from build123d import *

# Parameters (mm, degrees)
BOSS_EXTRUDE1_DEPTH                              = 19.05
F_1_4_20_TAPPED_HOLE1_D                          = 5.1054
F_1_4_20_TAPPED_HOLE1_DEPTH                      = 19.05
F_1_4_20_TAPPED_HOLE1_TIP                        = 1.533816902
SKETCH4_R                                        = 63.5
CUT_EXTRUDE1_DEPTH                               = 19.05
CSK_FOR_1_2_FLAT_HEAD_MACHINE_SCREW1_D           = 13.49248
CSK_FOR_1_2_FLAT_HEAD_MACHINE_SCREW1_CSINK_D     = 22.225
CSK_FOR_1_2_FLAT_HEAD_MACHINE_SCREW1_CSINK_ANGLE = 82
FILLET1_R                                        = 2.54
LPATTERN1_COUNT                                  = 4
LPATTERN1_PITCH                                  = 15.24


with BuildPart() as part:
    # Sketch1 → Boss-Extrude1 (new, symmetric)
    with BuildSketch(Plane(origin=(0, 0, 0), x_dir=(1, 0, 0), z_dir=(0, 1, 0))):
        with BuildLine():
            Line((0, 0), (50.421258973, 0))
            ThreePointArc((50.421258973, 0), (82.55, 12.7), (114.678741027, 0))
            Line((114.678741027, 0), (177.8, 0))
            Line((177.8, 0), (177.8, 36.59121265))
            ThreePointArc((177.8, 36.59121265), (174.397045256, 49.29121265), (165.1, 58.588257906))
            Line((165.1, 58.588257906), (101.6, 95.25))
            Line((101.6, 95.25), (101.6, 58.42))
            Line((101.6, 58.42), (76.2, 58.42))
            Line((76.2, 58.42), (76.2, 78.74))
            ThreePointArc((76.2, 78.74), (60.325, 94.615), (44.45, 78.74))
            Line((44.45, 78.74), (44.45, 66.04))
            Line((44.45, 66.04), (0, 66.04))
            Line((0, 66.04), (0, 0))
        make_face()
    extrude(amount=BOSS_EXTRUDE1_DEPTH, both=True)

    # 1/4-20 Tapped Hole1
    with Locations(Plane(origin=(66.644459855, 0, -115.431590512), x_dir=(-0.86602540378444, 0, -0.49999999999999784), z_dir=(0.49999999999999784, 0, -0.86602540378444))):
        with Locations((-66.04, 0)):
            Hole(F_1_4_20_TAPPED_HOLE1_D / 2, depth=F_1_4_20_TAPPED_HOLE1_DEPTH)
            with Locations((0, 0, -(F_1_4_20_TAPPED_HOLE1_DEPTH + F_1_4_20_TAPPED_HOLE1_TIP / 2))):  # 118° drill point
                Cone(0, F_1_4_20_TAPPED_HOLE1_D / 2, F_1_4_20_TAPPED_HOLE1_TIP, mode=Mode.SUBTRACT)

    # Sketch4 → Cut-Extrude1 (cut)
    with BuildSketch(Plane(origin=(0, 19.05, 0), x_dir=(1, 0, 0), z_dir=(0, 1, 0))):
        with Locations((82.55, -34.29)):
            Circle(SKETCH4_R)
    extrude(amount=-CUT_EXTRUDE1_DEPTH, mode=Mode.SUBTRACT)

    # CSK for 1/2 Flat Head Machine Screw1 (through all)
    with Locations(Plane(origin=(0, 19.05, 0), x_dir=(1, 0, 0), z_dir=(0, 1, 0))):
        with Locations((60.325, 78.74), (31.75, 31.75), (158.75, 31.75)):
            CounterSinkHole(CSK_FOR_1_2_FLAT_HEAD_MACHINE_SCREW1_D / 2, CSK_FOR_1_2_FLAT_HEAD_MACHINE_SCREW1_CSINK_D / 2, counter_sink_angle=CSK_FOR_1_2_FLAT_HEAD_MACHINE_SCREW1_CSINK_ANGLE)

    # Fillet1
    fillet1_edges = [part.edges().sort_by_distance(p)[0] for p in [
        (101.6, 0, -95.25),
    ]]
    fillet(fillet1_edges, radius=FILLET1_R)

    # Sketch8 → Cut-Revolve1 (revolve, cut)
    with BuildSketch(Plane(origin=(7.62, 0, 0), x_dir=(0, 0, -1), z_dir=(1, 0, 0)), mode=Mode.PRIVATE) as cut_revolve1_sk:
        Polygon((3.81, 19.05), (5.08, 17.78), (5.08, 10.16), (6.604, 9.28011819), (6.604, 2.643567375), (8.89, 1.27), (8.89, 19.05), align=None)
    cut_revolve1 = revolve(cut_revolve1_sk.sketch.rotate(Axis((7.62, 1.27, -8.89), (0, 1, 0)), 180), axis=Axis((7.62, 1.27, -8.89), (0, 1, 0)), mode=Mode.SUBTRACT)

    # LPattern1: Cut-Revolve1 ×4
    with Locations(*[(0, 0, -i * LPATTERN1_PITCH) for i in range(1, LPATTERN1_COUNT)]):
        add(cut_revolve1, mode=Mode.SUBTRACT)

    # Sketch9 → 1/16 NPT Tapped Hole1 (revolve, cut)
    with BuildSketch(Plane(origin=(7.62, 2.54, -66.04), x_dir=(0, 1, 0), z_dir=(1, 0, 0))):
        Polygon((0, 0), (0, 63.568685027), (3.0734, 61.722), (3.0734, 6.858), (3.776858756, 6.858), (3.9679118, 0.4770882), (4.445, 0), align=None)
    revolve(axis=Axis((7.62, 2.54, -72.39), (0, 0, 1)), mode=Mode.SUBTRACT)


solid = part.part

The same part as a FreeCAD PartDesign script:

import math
import FreeCAD as App
import Part
import Sketcher

V = App.Vector
Q = App.Units.Quantity


def edges_at(feature, points):
    """Names of the edges that pass closest to the given points."""
    edges = feature.Shape.Edges
    near = lambda p: min(range(len(edges)), key=lambda i: edges[i].distToShape(Part.Vertex(*p))[0])
    return sorted({f"Edge{near(p) + 1}" for p in points})

doc = App.newDocument("Part")
body = doc.addObject("PartDesign::Body", "Body")

# Sketch on XZ plane
sketch1 = body.newObject("Sketcher::SketchObject", "Sketch")
sketch1.AttachmentSupport = (doc.getObject("XZ_Plane"), [""])
sketch1.MapMode = "FlatFace"
sketch1.addGeometry([
    Part.LineSegment(V(0, 0, 0), V(50, 0, 0)),  # 0
    Part.ArcOfCircle(Part.Circle(V(83, 34, 0), V(0, 0, 1), 47), math.radians(-133), math.radians(-47)),  # 1
    Part.LineSegment(V(115, 0, 0), V(178, 0, 0)),  # 2
    Part.LineSegment(V(178, 0, 0), V(178, -37, 0)),  # 3
    Part.ArcOfCircle(Part.Circle(V(152, -37, 0), V(0, 0, 1), 25), math.radians(-60), math.radians(0)),  # 4
    Part.LineSegment(V(165, -59, 0), V(102, -95, 0)),  # 5
    Part.LineSegment(V(102, -95, 0), V(102, -58, 0)),  # 6
    Part.LineSegment(V(102, -58, 0), V(76, -58, 0)),  # 7
    Part.LineSegment(V(76, -58, 0), V(76, -79, 0)),  # 8
    Part.ArcOfCircle(Part.Circle(V(60, -79, 0), V(0, 0, 1), 16), math.radians(180), math.radians(360)),  # 9
    Part.LineSegment(V(44, -79, 0), V(44, -66, 0)),  # 10
    Part.LineSegment(V(44, -66, 0), V(0, -66, 0)),  # 11
    Part.LineSegment(V(0, -66, 0), V(0, 0, 0)),  # 12
], False)
sketch1.addConstraint([
    Sketcher.Constraint("Coincident", 0, 2, 1, 1),
    Sketcher.Constraint("Coincident", 1, 2, 2, 1),
    Sketcher.Constraint("Coincident", 2, 2, 3, 1),
    Sketcher.Constraint("Tangent", 3, 2, 4, 2),
    Sketcher.Constraint("Tangent", 4, 1, 5, 1),
    Sketcher.Constraint("Coincident", 5, 2, 6, 1),
    Sketcher.Constraint("Coincident", 6, 2, 7, 1),
    Sketcher.Constraint("Coincident", 7, 2, 8, 1),
    Sketcher.Constraint("Tangent", 8, 2, 9, 2),
    Sketcher.Constraint("Tangent", 9, 1, 10, 1),
    Sketcher.Constraint("Coincident", 10, 2, 11, 1),
    Sketcher.Constraint("Coincident", 11, 2, 12, 1),
    Sketcher.Constraint("Coincident", 12, 2, 0, 1),
    Sketcher.Constraint("Horizontal", 0),
    Sketcher.Constraint("Horizontal", 2),
    Sketcher.Constraint("Vertical", 3),
    Sketcher.Constraint("Vertical", 6),
    Sketcher.Constraint("Horizontal", 7),
    Sketcher.Constraint("Vertical", 8),
    Sketcher.Constraint("Vertical", 10),
    Sketcher.Constraint("Horizontal", 11),
    Sketcher.Constraint("Vertical", 12),
    Sketcher.Constraint("Coincident", 12, 2, -1, 1),
    Sketcher.Constraint("PointOnObject", 1, 2, -1),
    Sketcher.Constraint("Radius", 4, Q("1 in")),
    Sketcher.Constraint("DistanceX", 7, 2, 7, 1, Q("1 in")),
    Sketcher.Constraint("Radius", 1, Q("1.85 in")),
    Sketcher.Constraint("DistanceY", 8, 2, 8, 1, Q("0.8 in")),
    Sketcher.Constraint("DistanceY", 10, 1, 10, 2, Q("0.5 in")),
    Sketcher.Constraint("DistanceY", 12, 1, 12, 2, Q("2.6 in")),
    Sketcher.Constraint("DistanceX", -1, 1, 4, 3, Q("6 in")),
    Sketcher.Constraint("DistanceX", -1, 1, 5, 2, Q("4 in")),
    Sketcher.Constraint("Angle", 5, Q("-150 deg")),
    Sketcher.Constraint("Radius", 9, Q("0.625 in")),
    Sketcher.Constraint("DistanceY", 6, 1, 6, 2, Q("1.45 in")),
    Sketcher.Constraint("DistanceX", -1, 1, 1, 3, Q("3.25 in")),
    Sketcher.Constraint("DistanceY", -1, 1, 1, 3, Q("1.35 in")),
])
pad1 = body.newObject("PartDesign::Pad", "Pad")
pad1.Profile = sketch1
pad1.Length = Q("1.5 in")
pad1.Midplane = True

# Sketch on an angled plane
sketch2 = body.newObject("Sketcher::SketchObject", "Sketch001")
sketch2.Placement = App.Placement(V(66.64446, 0, -115.431591), App.Rotation(V(-0.866025404, 0, -0.5), V(0, 1, 0), V(0.5, 0, -0.866025404), "ZXY"))
sketch2.addGeometry(Part.Circle(V(-66, 0, 0), V(0, 0, 1), 2.6), False)
sketch2.addConstraint([
    Sketcher.Constraint("PointOnObject", 0, 3, -1),
    Sketcher.Constraint("Diameter", 0, Q("0.201 in")),
    Sketcher.Constraint("DistanceX", 0, 3, -1, 1, Q("2.6 in")),
])
doc.recompute()
hole = body.newObject("PartDesign::Hole", "Hole")
hole.Profile = sketch2
hole.ThreadType = "None"
hole.Diameter = Q("0.201 in")
hole.DepthType = "Dimension"
hole.Depth = Q("0.75 in")
hole.DrillPoint = "Angled"
hole.DrillPointAngle = 118

# Sketch on XZ plane
sketch3 = body.newObject("Sketcher::SketchObject", "Sketch002")
sketch3.AttachmentSupport = (doc.getObject("XZ_Plane"), [""])
sketch3.MapMode = "FlatFace"
sketch3.AttachmentOffset = App.Placement(V(0, 0, -0.75 * 25.4), App.Rotation())
sketch3.addGeometry(Part.Circle(V(83, 34, 0), V(0, 0, 1), 64), False)
sketch3.addConstraint([
    Sketcher.Constraint("Diameter", 0, Q("5 in")),
    Sketcher.Constraint("DistanceX", -1, 1, 0, 3, Q("3.25 in")),
    Sketcher.Constraint("DistanceY", -1, 1, 0, 3, Q("1.35 in")),
])
pocket1 = body.newObject("PartDesign::Pocket", "Pocket")
pocket1.Profile = sketch3
pocket1.Length = Q("0.75 in")
pocket1.Reversed = True

# Sketch on XZ plane
sketch4 = body.newObject("Sketcher::SketchObject", "Sketch003")
sketch4.AttachmentSupport = (doc.getObject("XZ_Plane"), [""])
sketch4.MapMode = "FlatFace"
sketch4.AttachmentOffset = App.Placement(V(0, 0, -0.75 * 25.4), App.Rotation())
sketch4.addGeometry([
    Part.Circle(V(60, -79, 0), V(0, 0, 1), 7),
    Part.Circle(V(32, -32, 0), V(0, 0, 1), 7),
    Part.Circle(V(159, -32, 0), V(0, 0, 1), 7),
], False)
sketch4.addConstraint([
    Sketcher.Constraint("Equal", 0, 1),
    Sketcher.Constraint("Equal", 1, 2),
    Sketcher.Constraint("Horizontal", 1, 3, 2, 3),
    Sketcher.Constraint("DistanceX", 1, 3, 2, 3, Q("5 in")),
    Sketcher.Constraint("Diameter", 0, Q("0.5312 in")),
    Sketcher.Constraint("DistanceY", 0, 3, -1, 1, Q("3.1 in")),
    Sketcher.Constraint("DistanceX", -1, 1, 1, 3, Q("1.25 in")),
    Sketcher.Constraint("DistanceY", 1, 3, -1, 1, Q("1.25 in")),
    Sketcher.Constraint("DistanceX", -1, 1, 0, 3, Q("2.375 in")),
])
doc.recompute()
hole2 = body.newObject("PartDesign::Hole", "Hole001")
hole2.Profile = sketch4
hole2.ThreadType = "None"
hole2.Diameter = Q("0.5312 in")
hole2.DepthType = "ThroughAll"
hole2.HoleCutType = "Countersink"
hole2.HoleCutDiameter = Q("0.875 in")
hole2.HoleCutCountersinkAngle = 82
hole2.Reversed = True
doc.recompute()

fillet = body.newObject("PartDesign::Fillet", "Fillet")
fillet.Base = (hole2, edges_at(hole2, [(101.6, 0, -95.25)]))
fillet.Radius = Q("0.1 in")

# Sketch on YZ plane
sketch5 = body.newObject("Sketcher::SketchObject", "Sketch004")
sketch5.AttachmentSupport = (doc.getObject("YZ_Plane"), [""])
sketch5.MapMode = "FlatFace"
sketch5.AttachmentOffset = App.Placement(V(0, 0, 0.3 * 25.4), App.Rotation())
sketch5.addGeometry([
    Part.LineSegment(V(19.1, -3.8, 0), V(17.8, -5.1, 0)),  # 0
    Part.LineSegment(V(17.8, -5.1, 0), V(10.2, -5.1, 0)),  # 1
    Part.LineSegment(V(10.2, -5.1, 0), V(9.3, -6.6, 0)),  # 2
    Part.LineSegment(V(9.3, -6.6, 0), V(2.6, -6.6, 0)),  # 3
    Part.LineSegment(V(2.6, -6.6, 0), V(1.3, -8.9, 0)),  # 4
    Part.LineSegment(V(1.3, -8.9, 0), V(19.1, -8.9, 0)),  # 5
    Part.LineSegment(V(19.1, -8.9, 0), V(19.1, -3.8, 0)),  # 6
], False)
sketch5.addGeometry(Part.LineSegment(V(1.3, -8.9, 0), V(19.1, -8.9, 0)), True)  # axis
sketch5.addConstraint([
    Sketcher.Constraint("Coincident", 0, 2, 1, 1),
    Sketcher.Constraint("Coincident", 1, 2, 2, 1),
    Sketcher.Constraint("Coincident", 2, 2, 3, 1),
    Sketcher.Constraint("Coincident", 3, 2, 4, 1),
    Sketcher.Constraint("Coincident", 4, 2, 5, 1),
    Sketcher.Constraint("Coincident", 5, 2, 6, 1),
    Sketcher.Constraint("Coincident", 6, 2, 0, 1),
    Sketcher.Constraint("Horizontal", 1),
    Sketcher.Constraint("Horizontal", 3),
    Sketcher.Constraint("Horizontal", 5),
    Sketcher.Constraint("Vertical", 6),
    Sketcher.Constraint("Horizontal", 7),
    Sketcher.Constraint("Coincident", 7, 1, 4, 2),
    Sketcher.Constraint("Vertical", 6, 2, 7, 2),
    Sketcher.Constraint("DistanceX", 1, 2, 1, 1, Q("0.3 in")),
    Sketcher.Constraint("DistanceX", 5, 1, 5, 2, Q("0.7 in")),
    Sketcher.Constraint("DistanceY", 6, 1, 6, 2, Q("0.2 in")),
    Sketcher.Constraint("Angle", 0, Q("-135 deg")),
    Sketcher.Constraint("Angle", 2, Q("-120 deg")),
    Sketcher.Constraint("Angle", 4, Q("-121 deg")),
    Sketcher.Constraint("DistanceX", -1, 1, 0, 2, Q("0.7 in")),
    Sketcher.Constraint("DistanceY", 0, 2, -1, 1, Q("0.2 in")),
    Sketcher.Constraint("DistanceY", 2, 2, -1, 1, Q("0.26 in")),
    Sketcher.Constraint("DistanceX", -1, 1, 4, 2, Q("0.05 in")),
])
groove = body.newObject("PartDesign::Groove", "Groove")
groove.Profile = sketch5
groove.ReferenceAxis = (sketch5, ["Axis0"])
groove.Angle = 360
doc.recompute()

linearpattern = body.newObject("PartDesign::LinearPattern", "LinearPattern")
linearpattern.Originals = [groove]
linearpattern.Direction = (doc.getObject("Z_Axis"), [""])
linearpattern.Mode = "offset"
linearpattern.Offset = Q("0.6 in")
linearpattern.Occurrences = 4
linearpattern.Reversed = True
body.Tip = linearpattern

# Sketch on YZ plane
sketch6 = body.newObject("Sketcher::SketchObject", "Sketch005")
sketch6.AttachmentSupport = (doc.getObject("YZ_Plane"), [""])
sketch6.MapMode = "FlatFace"
sketch6.AttachmentOffset = App.Placement(V(0, 0, 0.3 * 25.4), App.Rotation())
sketch6.addGeometry([
    Part.LineSegment(V(2.5, -2.5, 0), V(2.5, -66, 0)),  # 0
    Part.LineSegment(V(2.5, -66, 0), V(7, -66, 0)),  # 1
    Part.LineSegment(V(7, -66, 0), V(6.5, -65.6, 0)),  # 2
    Part.LineSegment(V(6.5, -65.6, 0), V(6.3, -59.2, 0)),  # 3
    Part.LineSegment(V(6.3, -59.2, 0), V(5.6, -59.2, 0)),  # 4
    Part.LineSegment(V(5.6, -59.2, 0), V(5.6, -4.3, 0)),  # 5
    Part.LineSegment(V(5.6, -4.3, 0), V(2.5, -2.5, 0)),  # 6
], False)
sketch6.addGeometry(Part.LineSegment(V(2.5, -66, 0), V(2.5, -2.5, 0)), True)  # axis
sketch6.addConstraint([
    Sketcher.Constraint("Coincident", 0, 2, 1, 1),
    Sketcher.Constraint("Coincident", 1, 2, 2, 1),
    Sketcher.Constraint("Coincident", 2, 2, 3, 1),
    Sketcher.Constraint("Coincident", 3, 2, 4, 1),
    Sketcher.Constraint("Coincident", 4, 2, 5, 1),
    Sketcher.Constraint("Coincident", 5, 2, 6, 1),
    Sketcher.Constraint("Coincident", 6, 2, 0, 1),
    Sketcher.Constraint("Vertical", 0),
    Sketcher.Constraint("Horizontal", 1),
    Sketcher.Constraint("Horizontal", 4),
    Sketcher.Constraint("Vertical", 5),
    Sketcher.Constraint("Vertical", 7),
    Sketcher.Constraint("Coincident", 7, 1, 0, 2),
    Sketcher.Constraint("Equal", 0, 7),
    Sketcher.Constraint("Angle", 2, Q("135 deg")),
    Sketcher.Constraint("Angle", 6, Q("149 deg")),
    Sketcher.Constraint("DistanceY", 5, 1, 5, 2, Q("2.16 in")),
    Sketcher.Constraint("DistanceX", -1, 1, 0, 2, Q("0.1 in")),
    Sketcher.Constraint("DistanceY", 0, 2, -1, 1, Q("2.6 in")),
    Sketcher.Constraint("DistanceX", 1, 1, 1, 2, Q("0.175 in")),
    Sketcher.Constraint("DistanceY", 3, 2, -1, 1, Q("2.33 in")),
    Sketcher.Constraint("DistanceX", -1, 1, 4, 2, Q("0.221 in")),
    Sketcher.Constraint("DistanceX", 4, 2, 4, 1, Q("0.703459 mm")),
    Sketcher.Constraint("Distance", 3, Q("6.383771 mm")),
])
groove2 = body.newObject("PartDesign::Groove", "Groove001")
groove2.Profile = sketch6
groove2.ReferenceAxis = (sketch6, ["Axis0"])
groove2.Angle = 360

doc.recompute()
